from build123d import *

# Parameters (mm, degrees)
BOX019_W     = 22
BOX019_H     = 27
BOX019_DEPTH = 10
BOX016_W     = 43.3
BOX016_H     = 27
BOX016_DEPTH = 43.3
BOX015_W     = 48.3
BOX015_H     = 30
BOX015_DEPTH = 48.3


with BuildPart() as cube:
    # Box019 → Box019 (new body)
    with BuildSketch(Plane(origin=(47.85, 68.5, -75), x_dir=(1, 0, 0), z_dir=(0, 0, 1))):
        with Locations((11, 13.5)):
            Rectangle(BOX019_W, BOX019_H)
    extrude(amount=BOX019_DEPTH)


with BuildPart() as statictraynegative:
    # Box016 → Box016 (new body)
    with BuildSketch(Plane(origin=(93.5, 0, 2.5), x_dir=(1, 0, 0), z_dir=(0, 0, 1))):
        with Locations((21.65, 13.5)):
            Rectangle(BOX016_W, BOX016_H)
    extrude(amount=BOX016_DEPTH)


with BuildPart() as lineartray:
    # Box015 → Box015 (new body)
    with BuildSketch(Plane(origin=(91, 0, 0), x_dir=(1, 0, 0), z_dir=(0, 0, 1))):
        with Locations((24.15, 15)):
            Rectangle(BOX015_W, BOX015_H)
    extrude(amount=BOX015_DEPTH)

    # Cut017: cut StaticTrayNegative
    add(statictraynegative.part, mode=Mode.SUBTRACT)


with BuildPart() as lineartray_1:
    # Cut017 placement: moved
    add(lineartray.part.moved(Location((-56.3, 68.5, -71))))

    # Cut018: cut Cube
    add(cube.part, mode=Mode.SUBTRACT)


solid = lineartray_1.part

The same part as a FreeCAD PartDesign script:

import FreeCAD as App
import Part
import Sketcher


def add_polygon(sketch, points):
    """Adds a closed chain of lines whose ends are joined by coincident constraints."""
    first, n = sketch.GeometryCount, len(points)
    for a, b in zip(points, points[1:] + points[:1]):
        sketch.addGeometry(Part.LineSegment(App.Vector(*a, 0), App.Vector(*b, 0)), False)
    for i in range(n):
        sketch.addConstraint(Sketcher.Constraint("Coincident", first + i, 2, first + (i + 1) % n, 1))

doc = App.newDocument("Part")
body = doc.addObject("PartDesign::Body", "Body")

sketch1 = doc.addObject("Sketcher::SketchObject", "Sketch")
body.addObject(sketch1)
sketch1.AttachmentSupport = (doc.XY_Plane, [""])
sketch1.MapMode = "FlatFace"
sketch1.AttachmentOffset = App.Placement(App.Vector(0, 0, -75), App.Rotation())
add_polygon(sketch1, [(48, 96), (48, 68), (70, 68), (70, 96)])
sketch1.addConstraint([
    Sketcher.Constraint("Vertical", 0),
    Sketcher.Constraint("Horizontal", 1),
    Sketcher.Constraint("Vertical", 2),
    Sketcher.Constraint("Horizontal", 3),
    Sketcher.Constraint("DistanceX", 1, 1, 1, 2, 22.0),
    Sketcher.Constraint("DistanceY", 0, 2, 0, 1, 27.0),
    Sketcher.Constraint("DistanceY", -1, 1, 0, 2, 68.5),
    Sketcher.Constraint("DistanceX", -1, 1, 0, 2, 47.85),
])
pad1 = doc.addObject("PartDesign::Pad", "Pad")
body.addObject(pad1)
pad1.Profile = sketch1
pad1.Length = 10
body2 = doc.addObject("PartDesign::Body", "Body001")

sketch2 = doc.addObject("Sketcher::SketchObject", "Sketch001")
body2.addObject(sketch2)
sketch2.AttachmentSupport = (doc.getObject("XY_Plane001"), [""])
sketch2.MapMode = "FlatFace"
sketch2.AttachmentOffset = App.Placement(App.Vector(0, 0, 2.5), App.Rotation())
add_polygon(sketch2, [(94, 27), (94, 0), (137, 0), (137, 27)])
sketch2.addConstraint([
    Sketcher.Constraint("Vertical", 0),
    Sketcher.Constraint("Horizontal", 1),
    Sketcher.Constraint("Vertical", 2),
    Sketcher.Constraint("Horizontal", 3),
    Sketcher.Constraint("PointOnObject", 0, 2, -1),
    Sketcher.Constraint("DistanceY", 0, 2, 0, 1, 27.0),
    Sketcher.Constraint("DistanceX", 1, 1, 1, 2, 43.3),
    Sketcher.Constraint("DistanceX", -1, 1, 0, 2, 93.5),
])
pad2 = doc.addObject("PartDesign::Pad", "Pad001")
body2.addObject(pad2)
pad2.Profile = sketch2
pad2.Length = 43.3
body3 = doc.addObject("PartDesign::Body", "Body002")

sketch3 = doc.addObject("Sketcher::SketchObject", "Sketch002")
body3.addObject(sketch3)
sketch3.AttachmentSupport = (doc.getObject("XY_Plane002"), [""])
sketch3.MapMode = "FlatFace"
add_polygon(sketch3, [(91, 30), (91, 0), (139, 0), (139, 30)])
sketch3.addConstraint([
    Sketcher.Constraint("Vertical", 0),
    Sketcher.Constraint("Horizontal", 1),
    Sketcher.Constraint("Vertical", 2),
    Sketcher.Constraint("Horizontal", 3),
    Sketcher.Constraint("PointOnObject", 0, 2, -1),
    Sketcher.Constraint("DistanceY", 0, 2, 0, 1, 30.0),
    Sketcher.Constraint("DistanceX", 1, 1, 1, 2, 48.3),
    Sketcher.Constraint("DistanceX", -1, 1, 0, 2, 91.0),
])
pad3 = doc.addObject("PartDesign::Pad", "Pad002")
body3.addObject(pad3)
pad3.Profile = sketch3
pad3.Length = 48.3
doc.recompute()

boolean = doc.addObject("PartDesign::Boolean", "Boolean")
body3.addObject(boolean)
boolean.Type = "Cut"
boolean.addObjects([body2])
body4 = doc.addObject("PartDesign::Body", "Body003")
doc.recompute()

body3.Placement = App.Placement(App.Vector(-56.3, 68.5, -71), App.Rotation(App.Vector(0, 0, 1), 0))
boolean2 = doc.addObject("PartDesign::Boolean", "Boolean001")
body4.addObject(boolean2)
boolean2.Type = "Fuse"
boolean2.addObjects([body3])
doc.recompute()

boolean3 = doc.addObject("PartDesign::Boolean", "Boolean002")
body4.addObject(boolean3)
boolean3.Type = "Cut"
boolean3.addObjects([body])

doc.recompute()
